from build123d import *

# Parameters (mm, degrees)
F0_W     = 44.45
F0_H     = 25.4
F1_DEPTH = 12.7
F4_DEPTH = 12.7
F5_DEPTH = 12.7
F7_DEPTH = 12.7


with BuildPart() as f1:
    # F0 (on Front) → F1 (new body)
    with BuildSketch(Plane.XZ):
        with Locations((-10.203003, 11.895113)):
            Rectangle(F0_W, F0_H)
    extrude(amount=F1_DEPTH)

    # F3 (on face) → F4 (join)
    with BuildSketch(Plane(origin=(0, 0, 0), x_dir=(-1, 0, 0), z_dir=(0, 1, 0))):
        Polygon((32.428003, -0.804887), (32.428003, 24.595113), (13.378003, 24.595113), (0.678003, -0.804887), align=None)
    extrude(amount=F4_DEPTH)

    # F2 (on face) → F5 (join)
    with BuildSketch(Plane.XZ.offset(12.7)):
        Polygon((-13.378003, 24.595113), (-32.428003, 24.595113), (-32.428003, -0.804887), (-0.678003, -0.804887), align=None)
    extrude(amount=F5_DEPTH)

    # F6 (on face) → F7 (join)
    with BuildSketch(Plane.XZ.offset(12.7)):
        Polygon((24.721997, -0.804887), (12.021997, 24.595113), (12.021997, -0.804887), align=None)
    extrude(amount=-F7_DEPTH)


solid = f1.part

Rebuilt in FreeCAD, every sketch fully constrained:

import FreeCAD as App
import Part
import Sketcher
Q = App.Units.Quantity


def add_polygon(sketch, points):
    """Adds a closed chain of lines whose ends are joined by coincident constraints."""
    first, n = sketch.GeometryCount, len(points)
    for a, b in zip(points, points[1:] + points[:1]):
        sketch.addGeometry(Part.LineSegment(App.Vector(*a, 0), App.Vector(*b, 0)), False)
    for i in range(n):
        sketch.addConstraint(Sketcher.Constraint("Coincident", first + i, 2, first + (i + 1) % n, 1))

doc = App.newDocument("Part")
body = doc.addObject("PartDesign::Body", "Body")

# Sketch on XZ plane
sketch1 = body.newObject("Sketcher::SketchObject", "Sketch")
sketch1.AttachmentSupport = (doc.getObject("XZ_Plane"), [""])
sketch1.MapMode = "FlatFace"
add_polygon(sketch1, [(-32.428003, 24.595113), (-32.428003, -0.804887), (12.021997, -0.804887), (12.021997, 24.595113)])  # lines 0-3
sketch1.addConstraint([
    Sketcher.Constraint("Vertical", 0),
    Sketcher.Constraint("Horizontal", 1),
    Sketcher.Constraint("Vertical", 2),
    Sketcher.Constraint("Horizontal", 3),
    Sketcher.Constraint("DistanceY", 0, 2, 0, 1, Q("1 in")),
    Sketcher.Constraint("DistanceX", 1, 1, 1, 2, Q("1.75 in")),
    Sketcher.Constraint("DistanceX", 0, 2, -1, 1, 32.428003),
    Sketcher.Constraint("DistanceY", 0, 2, -1, 1, 0.804887),
])
pad1 = body.newObject("PartDesign::Pad", "Pad")
pad1.Profile = sketch1
pad1.Length = Q("0.5 in")

# Sketch on XZ plane
sketch2 = body.newObject("Sketcher::SketchObject", "Sketch001")
sketch2.AttachmentSupport = (doc.getObject("XZ_Plane"), [""])
sketch2.MapMode = "FlatFace"
add_polygon(sketch2, [(-32.428003, -0.804887), (-32.428003, 24.595113), (-13.378003, 24.595113), (-0.678003, -0.804887)])  # lines 0-3
sketch2.addConstraint([
    Sketcher.Constraint("Vertical", 0),
    Sketcher.Constraint("Horizontal", 1),
    Sketcher.Constraint("Horizontal", 3),
    Sketcher.Constraint("DistanceY", 0, 1, 0, 2, Q("1 in")),
    Sketcher.Constraint("DistanceX", 1, 1, 1, 2, Q("0.75 in")),
    Sketcher.Constraint("DistanceX", 3, 2, 3, 1, Q("1.25 in")),
    Sketcher.Constraint("DistanceX", 0, 2, -1, 1, 32.428003),
    Sketcher.Constraint("DistanceY", -1, 1, 0, 2, 24.595113),
])
pad2 = body.newObject("PartDesign::Pad", "Pad001")
pad2.Profile = sketch2
pad2.Length = Q("0.5 in")
pad2.Reversed = True

# Sketch on XZ plane
sketch3 = body.newObject("Sketcher::SketchObject", "Sketch002")
sketch3.AttachmentSupport = (doc.getObject("XZ_Plane"), [""])
sketch3.MapMode = "FlatFace"
sketch3.AttachmentOffset = App.Placement(App.Vector(0, 0, 0.5 * 25.4), App.Rotation())
add_polygon(sketch3, [(-13.378003, 24.595113), (-32.428003, 24.595113), (-32.428003, -0.804887), (-0.678003, -0.804887)])  # lines 0-3
sketch3.addConstraint([
    Sketcher.Constraint("Horizontal", 0),
    Sketcher.Constraint("Vertical", 1),
    Sketcher.Constraint("Horizontal", 2),
    Sketcher.Constraint("DistanceY", 1, 2, 1, 1, Q("1 in")),
    Sketcher.Constraint("DistanceX", 0, 2, 0, 1, Q("0.75 in")),
    Sketcher.Constraint("DistanceX", 2, 1, 2, 2, Q("1.25 in")),
    Sketcher.Constraint("DistanceX", 0, 2, -1, 1, 32.428003),
    Sketcher.Constraint("DistanceY", -1, 1, 0, 2, 24.595113),
])
pad3 = body.newObject("PartDesign::Pad", "Pad002")
pad3.Profile = sketch3
pad3.Length = Q("0.5 in")

# Sketch on XZ plane
sketch4 = body.newObject("Sketcher::SketchObject", "Sketch003")
sketch4.AttachmentSupport = (doc.getObject("XZ_Plane"), [""])
sketch4.MapMode = "FlatFace"
sketch4.AttachmentOffset = App.Placement(App.Vector(0, 0, 0.5 * 25.4), App.Rotation())
add_polygon(sketch4, [(24.721997, -0.804887), (12.021997, 24.595113), (12.021997, -0.804887)])  # lines 0-2
sketch4.addConstraint([
    Sketcher.Constraint("Vertical", 1),
    Sketcher.Constraint("Horizontal", 2),
    Sketcher.Constraint("DistanceY", 1, 2, 1, 1, Q("1 in")),
    Sketcher.Constraint("DistanceX", 2, 1, 2, 2, Q("0.5 in")),
    Sketcher.Constraint("DistanceX", -1, 1, 0, 2, 12.021997),
    Sketcher.Constraint("DistanceY", -1, 1, 0, 2, 24.595113),
])
pad4 = body.newObject("PartDesign::Pad", "Pad003")
pad4.Profile = sketch4
pad4.Length = Q("0.5 in")
pad4.Reversed = True

doc.recompute()
